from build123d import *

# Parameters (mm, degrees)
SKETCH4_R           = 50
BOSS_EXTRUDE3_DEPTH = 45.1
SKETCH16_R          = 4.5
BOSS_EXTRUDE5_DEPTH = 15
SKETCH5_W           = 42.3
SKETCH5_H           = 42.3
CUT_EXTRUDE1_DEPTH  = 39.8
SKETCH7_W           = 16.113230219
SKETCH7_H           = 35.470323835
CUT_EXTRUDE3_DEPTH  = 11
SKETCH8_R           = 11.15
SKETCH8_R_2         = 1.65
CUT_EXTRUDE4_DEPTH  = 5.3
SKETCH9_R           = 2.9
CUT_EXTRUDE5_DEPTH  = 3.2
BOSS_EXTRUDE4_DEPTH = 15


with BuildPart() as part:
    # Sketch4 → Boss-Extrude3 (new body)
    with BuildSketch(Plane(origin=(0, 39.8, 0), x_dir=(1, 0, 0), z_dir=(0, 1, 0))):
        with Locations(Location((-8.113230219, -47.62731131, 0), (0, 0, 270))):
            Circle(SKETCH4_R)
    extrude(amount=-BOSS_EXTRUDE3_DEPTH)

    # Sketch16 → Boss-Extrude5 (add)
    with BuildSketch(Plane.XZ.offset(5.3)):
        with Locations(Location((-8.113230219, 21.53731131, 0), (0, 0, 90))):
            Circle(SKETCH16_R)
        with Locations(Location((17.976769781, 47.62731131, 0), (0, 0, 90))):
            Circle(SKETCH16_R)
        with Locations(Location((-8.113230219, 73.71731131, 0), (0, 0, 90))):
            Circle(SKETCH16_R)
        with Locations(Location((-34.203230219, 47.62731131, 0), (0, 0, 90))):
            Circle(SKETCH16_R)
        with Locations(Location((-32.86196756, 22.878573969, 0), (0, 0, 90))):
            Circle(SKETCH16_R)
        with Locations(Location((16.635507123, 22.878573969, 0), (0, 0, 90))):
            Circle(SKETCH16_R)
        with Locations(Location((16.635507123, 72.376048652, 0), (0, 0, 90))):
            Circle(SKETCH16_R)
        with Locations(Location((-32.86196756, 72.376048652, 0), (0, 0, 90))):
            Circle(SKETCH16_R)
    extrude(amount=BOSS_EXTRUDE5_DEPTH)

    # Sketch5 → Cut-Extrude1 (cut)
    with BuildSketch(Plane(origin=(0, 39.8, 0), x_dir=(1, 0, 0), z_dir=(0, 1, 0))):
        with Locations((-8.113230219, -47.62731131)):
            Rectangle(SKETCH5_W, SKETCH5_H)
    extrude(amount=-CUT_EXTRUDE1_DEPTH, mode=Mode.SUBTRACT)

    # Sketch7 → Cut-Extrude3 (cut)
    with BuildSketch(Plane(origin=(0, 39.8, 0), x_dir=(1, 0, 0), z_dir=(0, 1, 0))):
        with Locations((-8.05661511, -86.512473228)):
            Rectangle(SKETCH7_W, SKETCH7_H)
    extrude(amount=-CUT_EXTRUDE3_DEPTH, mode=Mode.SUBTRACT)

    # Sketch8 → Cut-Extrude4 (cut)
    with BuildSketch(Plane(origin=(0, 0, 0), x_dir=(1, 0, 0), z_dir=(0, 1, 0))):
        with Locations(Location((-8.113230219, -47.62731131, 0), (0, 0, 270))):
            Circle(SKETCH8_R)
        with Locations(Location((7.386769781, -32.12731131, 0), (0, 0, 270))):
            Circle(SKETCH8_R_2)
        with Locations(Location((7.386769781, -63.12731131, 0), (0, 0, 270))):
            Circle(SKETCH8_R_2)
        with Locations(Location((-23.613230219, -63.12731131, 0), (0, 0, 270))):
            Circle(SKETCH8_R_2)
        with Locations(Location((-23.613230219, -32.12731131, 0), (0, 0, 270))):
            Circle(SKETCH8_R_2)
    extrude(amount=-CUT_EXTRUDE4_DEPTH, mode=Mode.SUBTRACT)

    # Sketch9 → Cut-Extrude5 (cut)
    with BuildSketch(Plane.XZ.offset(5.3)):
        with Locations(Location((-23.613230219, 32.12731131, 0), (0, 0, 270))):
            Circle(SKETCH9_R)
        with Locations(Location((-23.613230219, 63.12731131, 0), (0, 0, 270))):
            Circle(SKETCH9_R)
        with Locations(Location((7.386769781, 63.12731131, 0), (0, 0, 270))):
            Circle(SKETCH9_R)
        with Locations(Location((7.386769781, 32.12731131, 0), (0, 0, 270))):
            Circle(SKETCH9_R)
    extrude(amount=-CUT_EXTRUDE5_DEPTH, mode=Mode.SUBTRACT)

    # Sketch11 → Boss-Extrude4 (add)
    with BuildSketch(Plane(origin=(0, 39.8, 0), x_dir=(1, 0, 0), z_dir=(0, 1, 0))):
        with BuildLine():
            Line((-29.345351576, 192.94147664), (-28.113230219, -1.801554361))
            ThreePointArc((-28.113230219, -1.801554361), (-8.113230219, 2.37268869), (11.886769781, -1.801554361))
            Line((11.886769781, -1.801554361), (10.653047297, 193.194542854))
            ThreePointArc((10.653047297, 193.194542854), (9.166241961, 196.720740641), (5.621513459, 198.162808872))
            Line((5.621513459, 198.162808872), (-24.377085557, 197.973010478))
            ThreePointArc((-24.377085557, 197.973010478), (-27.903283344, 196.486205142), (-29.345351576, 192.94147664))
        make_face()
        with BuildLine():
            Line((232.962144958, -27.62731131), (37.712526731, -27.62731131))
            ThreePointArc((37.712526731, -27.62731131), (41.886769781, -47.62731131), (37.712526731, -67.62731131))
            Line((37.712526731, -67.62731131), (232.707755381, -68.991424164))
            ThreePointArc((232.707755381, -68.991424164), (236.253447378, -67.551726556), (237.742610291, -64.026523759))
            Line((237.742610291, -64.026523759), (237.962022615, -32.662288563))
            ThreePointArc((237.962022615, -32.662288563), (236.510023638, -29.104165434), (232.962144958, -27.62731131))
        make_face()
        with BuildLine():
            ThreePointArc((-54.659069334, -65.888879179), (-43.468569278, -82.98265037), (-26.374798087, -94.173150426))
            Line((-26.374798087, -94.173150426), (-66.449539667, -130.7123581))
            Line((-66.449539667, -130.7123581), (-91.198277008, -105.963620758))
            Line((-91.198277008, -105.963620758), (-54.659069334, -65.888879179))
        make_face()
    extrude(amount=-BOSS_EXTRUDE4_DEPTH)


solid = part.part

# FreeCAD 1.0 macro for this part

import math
import FreeCAD as App
import Part
import Sketcher

V = App.Vector
Q = App.Units.Quantity

doc = App.newDocument("Part")
params = doc.addObject("Spreadsheet::Sheet", "Params")
for row, (alias, value) in enumerate([
    ("sketch1_diameter", "100 mm"),
    ("pad1_length", "45.1 mm"),
    ("sketch2_diameter", "9 mm"),
    ("pad2_length", "15 mm"),
    ("sketch3_width", "42.3 mm"),
    ("pocket1_length", "39.8 mm"),
    ("pocket2_length", "11 mm"),
    ("sketch5_diameter", "22.3 mm"),
    ("sketch5_diameter2", "3.3 mm"),
    ("pocket3_length", "5.3 mm"),
    ("sketch6_diameter", "5.8 mm"),
    ("pocket4_length", "3.2 mm"),
    ("sketch7_radius", "50 mm"),
    ("sketch7_radius2", "5 mm"),
    ("sketch7_length", "195 mm"),
    ("sketch7_length2", "35 mm"),
    ("pad3_length", "15 mm"),
], start=1):
    params.set(f"A{row}", alias)
    params.set(f"B{row}", "=" + value)
    params.setAlias(f"B{row}", alias)

body = doc.addObject("PartDesign::Body", "Body")

sketch1 = doc.addObject("Sketcher::SketchObject", "Sketch")
body.addObject(sketch1)
sketch1.AttachmentSupport = (doc.XZ_Plane, [""])
sketch1.MapMode = "FlatFace"
sketch1.AttachmentOffset = App.Placement(V(0, 0, -39.8), App.Rotation())
sketch1.addGeometry(Part.Circle(V(-8, 48, 0), V(0, 0, 1), 50), False)
sketch1.addConstraint(Sketcher.Constraint("Diameter", 0, Q("100 mm")))
sketch1.addConstraint(Sketcher.Constraint("DistanceX", 0, 3, -1, 1, Q("8.11323 mm")))
sketch1.addConstraint(Sketcher.Constraint("DistanceY", -1, 1, 0, 3, Q("47.627311 mm")))
sketch1.setExpression("Constraints[0]", "Params.sketch1_diameter")
pad1 = doc.addObject("PartDesign::Pad", "Pad")
body.addObject(pad1)
pad1.Profile = sketch1
pad1.setExpression("Length", "Params.pad1_length")

sketch2 = doc.addObject("Sketcher::SketchObject", "Sketch001")
body.addObject(sketch2)
sketch2.AttachmentSupport = (doc.XZ_Plane, [""])
sketch2.MapMode = "FlatFace"
sketch2.AttachmentOffset = App.Placement(V(0, 0, 5.3), App.Rotation())
sketch2.addGeometry(Part.Circle(V(-8.1, 21.5, 0), V(0, 0, 1), 4.5), False)
sketch2.addGeometry(Part.Circle(V(18, 47.6, 0), V(0, 0, 1), 4.5), False)
sketch2.addGeometry(Part.Circle(V(-8.1, 73.7, 0), V(0, 0, 1), 4.5), False)
sketch2.addGeometry(Part.Circle(V(-34.2, 47.6, 0), V(0, 0, 1), 4.5), False)
sketch2.addGeometry(Part.Circle(V(-32.9, 22.9, 0), V(0, 0, 1), 4.5), False)
sketch2.addGeometry(Part.Circle(V(16.6, 22.9, 0), V(0, 0, 1), 4.5), False)
sketch2.addGeometry(Part.Circle(V(16.6, 72.4, 0), V(0, 0, 1), 4.5), False)
sketch2.addGeometry(Part.Circle(V(-32.9, 72.4, 0), V(0, 0, 1), 4.5), False)
sketch2.addConstraint(Sketcher.Constraint("Equal", 0, 1))
sketch2.addConstraint(Sketcher.Constraint("Equal", 1, 2))
sketch2.addConstraint(Sketcher.Constraint("Equal", 2, 3))
sketch2.addConstraint(Sketcher.Constraint("Equal", 3, 4))
sketch2.addConstraint(Sketcher.Constraint("Equal", 4, 5))
sketch2.addConstraint(Sketcher.Constraint("Equal", 5, 6))
sketch2.addConstraint(Sketcher.Constraint("Equal", 6, 7))
sketch2.addConstraint(Sketcher.Constraint("Horizontal", 1, 3, 3, 3))
sketch2.addConstraint(Sketcher.Constraint("Horizontal", 4, 3, 5, 3))
sketch2.addConstraint(Sketcher.Constraint("Horizontal", 6, 3, 7, 3))
sketch2.addConstraint(Sketcher.Constraint("Vertical", 0, 3, 2, 3))
sketch2.addConstraint(Sketcher.Constraint("Vertical", 5, 3, 6, 3))
sketch2.addConstraint(Sketcher.Constraint("Vertical", 4, 3, 7, 3))
sketch2.addConstraint(Sketcher.Constraint("Diameter", 0, Q("9 mm")))
sketch2.addConstraint(Sketcher.Constraint("DistanceX", 0, 3, 1, 3, Q("26.09 mm")))
sketch2.addConstraint(Sketcher.Constraint("DistanceY", 0, 3, 1, 3, Q("26.09 mm")))
sketch2.addConstraint(Sketcher.Constraint("DistanceY", 1, 3, 2, 3, Q("26.09 mm")))
sketch2.addConstraint(Sketcher.Constraint("DistanceX", 3, 3, 2, 3, Q("26.09 mm")))
sketch2.addConstraint(Sketcher.Constraint("DistanceX", 0, 3, -1, 1, Q("8.11323 mm")))
sketch2.addConstraint(Sketcher.Constraint("DistanceY", -1, 1, 0, 3, Q("21.537311 mm")))
sketch2.addConstraint(Sketcher.Constraint("DistanceY", -1, 1, 6, 3, Q("72.376049 mm")))
sketch2.addConstraint(Sketcher.Constraint("DistanceX", 4, 3, -1, 1, Q("32.861968 mm")))
sketch2.addConstraint(Sketcher.Constraint("DistanceY", -1, 1, 4, 3, Q("22.878574 mm")))
sketch2.addConstraint(Sketcher.Constraint("DistanceX", -1, 1, 5, 3, Q("16.635507 mm")))
sketch2.setExpression("Constraints[13]", "Params.sketch2_diameter")
pad2 = doc.addObject("PartDesign::Pad", "Pad001")
body.addObject(pad2)
pad2.Profile = sketch2
pad2.setExpression("Length", "Params.pad2_length")

sketch3 = doc.addObject("Sketcher::SketchObject", "Sketch002")
body.addObject(sketch3)
sketch3.AttachmentSupport = (doc.XZ_Plane, [""])
sketch3.MapMode = "FlatFace"
sketch3.AttachmentOffset = App.Placement(V(0, 0, -39.8), App.Rotation())
sketch3.addGeometry(Part.LineSegment(V(-29, 26, 0), V(-29, 69, 0)), False)
sketch3.addGeometry(Part.LineSegment(V(-29, 69, 0), V(13, 69, 0)), False)
sketch3.addGeometry(Part.LineSegment(V(13, 69, 0), V(13, 26, 0)), False)
sketch3.addGeometry(Part.LineSegment(V(13, 26, 0), V(-29, 26, 0)), False)
sketch3.addConstraint(Sketcher.Constraint("Coincident", 0, 2, 1, 1))
sketch3.addConstraint(Sketcher.Constraint("Coincident", 1, 2, 2, 1))
sketch3.addConstraint(Sketcher.Constraint("Coincident", 2, 2, 3, 1))
sketch3.addConstraint(Sketcher.Constraint("Coincident", 3, 2, 0, 1))
sketch3.addConstraint(Sketcher.Constraint("Vertical", 0))
sketch3.addConstraint(Sketcher.Constraint("Horizontal", 1))
sketch3.addConstraint(Sketcher.Constraint("Vertical", 2))
sketch3.addConstraint(Sketcher.Constraint("Horizontal", 3))
sketch3.addConstraint(Sketcher.Constraint("Equal", 3, 0))
sketch3.addConstraint(Sketcher.Constraint("DistanceX", 1, 1, 1, 2, Q("42.3 mm")))
sketch3.addConstraint(Sketcher.Constraint("DistanceX", 0, 2, -1, 1, Q("29.26323 mm")))
sketch3.addConstraint(Sketcher.Constraint("DistanceY", -1, 1, 0, 2, Q("68.777311 mm")))
sketch3.setExpression("Constraints[9]", "Params.sketch3_width")
pocket1 = doc.addObject("PartDesign::Pocket", "Pocket")
body.addObject(pocket1)
pocket1.Profile = sketch3
pocket1.setExpression("Length", "Params.pocket1_length")
pocket1.Reversed = True

sketch4 = doc.addObject("Sketcher::SketchObject", "Sketch003")
body.addObject(sketch4)
sketch4.AttachmentSupport = (doc.XZ_Plane, [""])
sketch4.MapMode = "FlatFace"
sketch4.AttachmentOffset = App.Placement(V(0, 0, -39.8), App.Rotation())
sketch4.addGeometry(Part.LineSegment(V(-16, 69, 0), V(-16, 104, 0)), False)
sketch4.addGeometry(Part.LineSegment(V(-16, 104, 0), V(0, 104, 0)), False)
sketch4.addGeometry(Part.LineSegment(V(0, 104, 0), V(0, 69, 0)), False)
sketch4.addGeometry(Part.LineSegment(V(0, 69, 0), V(-16, 69, 0)), False)
sketch4.addConstraint(Sketcher.Constraint("Coincident", 0, 2, 1, 1))
sketch4.addConstraint(Sketcher.Constraint("Coincident", 1, 2, 2, 1))
sketch4.addConstraint(Sketcher.Constraint("Coincident", 2, 2, 3, 1))
sketch4.addConstraint(Sketcher.Constraint("Coincident", 3, 2, 0, 1))
sketch4.addConstraint(Sketcher.Constraint("Vertical", 0))
sketch4.addConstraint(Sketcher.Constraint("Horizontal", 1))
sketch4.addConstraint(Sketcher.Constraint("Vertical", 2))
sketch4.addConstraint(Sketcher.Constraint("Horizontal", 3))
sketch4.addConstraint(Sketcher.Constraint("PointOnObject", 1, 2, -2))
sketch4.addConstraint(Sketcher.Constraint("DistanceX", 1, 1, 1, 2, Q("16.11323 mm")))
sketch4.addConstraint(Sketcher.Constraint("DistanceY", 0, 1, 0, 2, Q("35.470324 mm")))
sketch4.addConstraint(Sketcher.Constraint("DistanceY", -1, 1, 2, 2, Q("68.777311 mm")))
pocket2 = doc.addObject("PartDesign::Pocket", "Pocket001")
body.addObject(pocket2)
pocket2.Profile = sketch4
pocket2.setExpression("Length", "Params.pocket2_length")
pocket2.Reversed = True

sketch5 = doc.addObject("Sketcher::SketchObject", "Sketch004")
body.addObject(sketch5)
sketch5.AttachmentSupport = (doc.XZ_Plane, [""])
sketch5.MapMode = "FlatFace"
sketch5.addGeometry(Part.Circle(V(-8.1, 47.6, 0), V(0, 0, 1), 11.2), False)
sketch5.addGeometry(Part.Circle(V(7.4, 32.1, 0), V(0, 0, 1), 1.6), False)
sketch5.addGeometry(Part.Circle(V(7.4, 63.1, 0), V(0, 0, 1), 1.6), False)
sketch5.addGeometry(Part.Circle(V(-23.6, 63.1, 0), V(0, 0, 1), 1.6), False)
sketch5.addGeometry(Part.Circle(V(-23.6, 32.1, 0), V(0, 0, 1), 1.6), False)
sketch5.addConstraint(Sketcher.Constraint("Equal", 1, 2))
sketch5.addConstraint(Sketcher.Constraint("Equal", 2, 3))
sketch5.addConstraint(Sketcher.Constraint("Equal", 3, 4))
sketch5.addConstraint(Sketcher.Constraint("Horizontal", 2, 3, 3, 3))
sketch5.addConstraint(Sketcher.Constraint("Horizontal", 1, 3, 4, 3))
sketch5.addConstraint(Sketcher.Constraint("Vertical", 1, 3, 2, 3))
sketch5.addConstraint(Sketcher.Constraint("Vertical", 3, 3, 4, 3))
sketch5.addConstraint(Sketcher.Constraint("Diameter", 0, Q("22.3 mm")))
sketch5.addConstraint(Sketcher.Constraint("Diameter", 1, Q("3.3 mm")))
sketch5.addConstraint(Sketcher.Constraint("DistanceY", 1, 3, 2, 3, Q("31 mm")))
sketch5.addConstraint(Sketcher.Constraint("DistanceX", 3, 3, 2, 3, Q("31 mm")))
sketch5.addConstraint(Sketcher.Constraint("DistanceX", 0, 3, 1, 3, Q("15.5 mm")))
sketch5.addConstraint(Sketcher.Constraint("DistanceY", 1, 3, 0, 3, Q("15.5 mm")))
sketch5.addConstraint(Sketcher.Constraint("DistanceX", 0, 3, -1, 1, Q("8.11323 mm")))
sketch5.addConstraint(Sketcher.Constraint("DistanceY", -1, 1, 0, 3, Q("47.627311 mm")))
sketch5.setExpression("Constraints[7]", "Params.sketch5_diameter")
sketch5.setExpression("Constraints[8]", "Params.sketch5_diameter2")
pocket3 = doc.addObject("PartDesign::Pocket", "Pocket002")
body.addObject(pocket3)
pocket3.Profile = sketch5
pocket3.setExpression("Length", "Params.pocket3_length")
pocket3.Reversed = True

sketch6 = doc.addObject("Sketcher::SketchObject", "Sketch005")
body.addObject(sketch6)
sketch6.AttachmentSupport = (doc.XZ_Plane, [""])
sketch6.MapMode = "FlatFace"
sketch6.AttachmentOffset = App.Placement(V(0, 0, 5.3), App.Rotation())
sketch6.addGeometry(Part.Circle(V(-23.6, 32.1, 0), V(0, 0, 1), 2.9), False)
sketch6.addGeometry(Part.Circle(V(-23.6, 63.1, 0), V(0, 0, 1), 2.9), False)
sketch6.addGeometry(Part.Circle(V(7.4, 63.1, 0), V(0, 0, 1), 2.9), False)
sketch6.addGeometry(Part.Circle(V(7.4, 32.1, 0), V(0, 0, 1), 2.9), False)
sketch6.addConstraint(Sketcher.Constraint("Equal", 0, 1))
sketch6.addConstraint(Sketcher.Constraint("Equal", 1, 2))
sketch6.addConstraint(Sketcher.Constraint("Equal", 2, 3))
sketch6.addConstraint(Sketcher.Constraint("Horizontal", 1, 3, 2, 3))
sketch6.addConstraint(Sketcher.Constraint("Horizontal", 0, 3, 3, 3))
sketch6.addConstraint(Sketcher.Constraint("Vertical", 0, 3, 1, 3))
sketch6.addConstraint(Sketcher.Constraint("Vertical", 2, 3, 3, 3))
sketch6.addConstraint(Sketcher.Constraint("Diameter", 0, Q("5.8 mm")))
sketch6.addConstraint(Sketcher.Constraint("DistanceY", 0, 3, 1, 3, Q("31 mm")))
sketch6.addConstraint(Sketcher.Constraint("DistanceX", 1, 3, 2, 3, Q("31 mm")))
sketch6.addConstraint(Sketcher.Constraint("DistanceX", 0, 3, -1, 1, Q("23.61323 mm")))
sketch6.addConstraint(Sketcher.Constraint("DistanceY", -1, 1, 0, 3, Q("32.127311 mm")))
sketch6.setExpression("Constraints[7]", "Params.sketch6_diameter")
pocket4 = doc.addObject("PartDesign::Pocket", "Pocket003")
body.addObject(pocket4)
pocket4.Profile = sketch6
pocket4.setExpression("Length", "Params.pocket4_length")

sketch7 = doc.addObject("Sketcher::SketchObject", "Sketch006")
body.addObject(sketch7)
sketch7.AttachmentSupport = (doc.XZ_Plane, [""])
sketch7.MapMode = "FlatFace"
sketch7.AttachmentOffset = App.Placement(V(0, 0, -39.8), App.Rotation())
sketch7.addGeometry(Part.LineSegment(V(-29.3, -192.9, 0), V(-28.1, 1.8, 0)), False)
sketch7.addGeometry(Part.ArcOfCircle(Part.Circle(V(-8.1, 47.6, 0), V(0, 0, 1), 50), math.radians(-114), math.radians(-66)), False)
sketch7.addGeometry(Part.LineSegment(V(11.9, 1.8, 0), V(10.7, -193.2, 0)), False)
sketch7.addGeometry(Part.ArcOfCircle(Part.Circle(V(5.7, -193.2, 0), V(0, 0, 1), 5), math.radians(-90), math.radians(0)), False)
sketch7.addGeometry(Part.LineSegment(V(5.6, -198.2, 0), V(-24.4, -198, 0)), False)
sketch7.addGeometry(Part.ArcOfCircle(Part.Circle(V(-24.3, -193, 0), V(0, 0, 1), 5), math.radians(180), math.radians(270)), False)
sketch7.addGeometry(Part.LineSegment(V(233, 27.6, 0), V(37.7, 27.6, 0)), False)
sketch7.addGeometry(Part.ArcOfCircle(Part.Circle(V(-8.1, 47.6, 0), V(0, 0, 1), 50), math.radians(-24), math.radians(24)), False)
sketch7.addGeometry(Part.LineSegment(V(37.7, 67.6, 0), V(232.7, 69, 0)), False)
sketch7.addGeometry(Part.ArcOfCircle(Part.Circle(V(232.7, 64, 0), V(0, 0, 1), 5), math.radians(0), math.radians(90)), False)
sketch7.addGeometry(Part.LineSegment(V(237.7, 64, 0), V(238, 32.7, 0)), False)
sketch7.addGeometry(Part.ArcOfCircle(Part.Circle(V(233, 32.6, 0), V(0, 0, 1), 5), math.radians(-90), math.radians(0)), False)
sketch7.addGeometry(Part.ArcOfCircle(Part.Circle(V(-8.1, 47.6, 0), V(0, 0, 1), 50), math.radians(111), math.radians(159)), False)
sketch7.addGeometry(Part.LineSegment(V(-54.7, 65.9, 0), V(-91.2, 106, 0)), False)
sketch7.addGeometry(Part.LineSegment(V(-91.2, 106, 0), V(-66.4, 130.7, 0)), False)
sketch7.addGeometry(Part.LineSegment(V(-66.4, 130.7, 0), V(-26.4, 94.2, 0)), False)
sketch7.addConstraint(Sketcher.Constraint("Coincident", 0, 2, 1, 1))
sketch7.addConstraint(Sketcher.Constraint("Coincident", 1, 2, 2, 1))
sketch7.addConstraint(Sketcher.Constraint("Tangent", 2, 2, 3, 2))
sketch7.addConstraint(Sketcher.Constraint("Tangent", 3, 1, 4, 1))
sketch7.addConstraint(Sketcher.Constraint("Tangent", 4, 2, 5, 2))
sketch7.addConstraint(Sketcher.Constraint("Tangent", 5, 1, 0, 1))
sketch7.addConstraint(Sketcher.Constraint("Coincident", 6, 2, 7, 1))
sketch7.addConstraint(Sketcher.Constraint("Coincident", 7, 2, 8, 1))
sketch7.addConstraint(Sketcher.Constraint("Tangent", 8, 2, 9, 2))
sketch7.addConstraint(Sketcher.Constraint("Tangent", 9, 1, 10, 1))
sketch7.addConstraint(Sketcher.Constraint("Tangent", 10, 2, 11, 2))
sketch7.addConstraint(Sketcher.Constraint("Tangent", 11, 1, 6, 1))
sketch7.addConstraint(Sketcher.Constraint("Coincident", 12, 2, 13, 1))
sketch7.addConstraint(Sketcher.Constraint("Coincident", 13, 2, 14, 1))
sketch7.addConstraint(Sketcher.Constraint("Coincident", 14, 2, 15, 1))
sketch7.addConstraint(Sketcher.Constraint("Coincident", 15, 2, 12, 1))
sketch7.addConstraint(Sketcher.Constraint("Horizontal", 6))
sketch7.addConstraint(Sketcher.Constraint("Coincident", 7, 3, 1, 3))
sketch7.addConstraint(Sketcher.Constraint("Coincident", 12, 3, 1, 3))
sketch7.addConstraint(Sketcher.Constraint("Equal", 3, 5))
sketch7.addConstraint(Sketcher.Constraint("Equal", 1, 7))
sketch7.addConstraint(Sketcher.Constraint("Equal", 5, 9))
sketch7.addConstraint(Sketcher.Constraint("Equal", 9, 11))
sketch7.addConstraint(Sketcher.Constraint("Equal", 7, 12))
sketch7.addConstraint(Sketcher.Constraint("Parallel", 0, 2))
sketch7.addConstraint(Sketcher.Constraint("Perpendicular", 2, 4))
sketch7.addConstraint(Sketcher.Constraint("Perpendicular", 8, 10))
sketch7.addConstraint(Sketcher.Constraint("Horizontal", 0, 2, 1, 2))
sketch7.addConstraint(Sketcher.Constraint("Vertical", 6, 2, 7, 2))
sketch7.addConstraint(Sketcher.Constraint("Equal", 2, 8))
sketch7.addConstraint(Sketcher.Constraint("Equal", 13, 15))
sketch7.addConstraint(Sketcher.Constraint("Radius", 1, Q("50 mm")))
sketch7.addConstraint(Sketcher.Constraint("Radius", 3, Q("5 mm")))
sketch7.addConstraint(Sketcher.Constraint("Angle", 14, Q("45 deg")))
sketch7.addConstraint(Sketcher.Constraint("Distance", 2, Q("195 mm")))
sketch7.addConstraint(Sketcher.Constraint("Distance", 14, Q("35 mm")))
sketch7.addConstraint(Sketcher.Constraint("DistanceY", 11, 3, 1, 3, Q("15 mm")))
sketch7.addConstraint(Sketcher.Constraint("DistanceX", 0, 2, 1, 3, Q("20 mm")))
sketch7.addConstraint(Sketcher.Constraint("DistanceX", 6, 2, 6, 1, Q("195.249618 mm")))
sketch7.addConstraint(Sketcher.Constraint("DistanceX", 15, 2, -1, 1, Q("26.374798 mm")))
sketch7.addConstraint(Sketcher.Constraint("DistanceY", 3, 3, 5, 3, Q("0.189798 mm")))
sketch7.addConstraint(Sketcher.Constraint("DistanceX", 1, 3, -1, 1, Q("8.11323 mm")))
sketch7.addConstraint(Sketcher.Constraint("DistanceY", -1, 1, 1, 3, Q("47.627311 mm")))
sketch7.addConstraint(Sketcher.Constraint("DistanceX", 12, 2, -1, 1, Q("54.659069 mm")))
sketch7.addConstraint(Sketcher.Constraint("DistanceY", -1, 1, 13, 2, Q("105.963621 mm")))
sketch7.setExpression("Constraints[31]", "Params.sketch7_radius")
sketch7.setExpression("Constraints[32]", "Params.sketch7_radius2")
sketch7.setExpression("Constraints[34]", "Params.sketch7_length")
sketch7.setExpression("Constraints[35]", "Params.sketch7_length2")
pad3 = doc.addObject("PartDesign::Pad", "Pad002")
body.addObject(pad3)
pad3.Profile = sketch7
pad3.setExpression("Length", "Params.pad3_length")

doc.recompute()
